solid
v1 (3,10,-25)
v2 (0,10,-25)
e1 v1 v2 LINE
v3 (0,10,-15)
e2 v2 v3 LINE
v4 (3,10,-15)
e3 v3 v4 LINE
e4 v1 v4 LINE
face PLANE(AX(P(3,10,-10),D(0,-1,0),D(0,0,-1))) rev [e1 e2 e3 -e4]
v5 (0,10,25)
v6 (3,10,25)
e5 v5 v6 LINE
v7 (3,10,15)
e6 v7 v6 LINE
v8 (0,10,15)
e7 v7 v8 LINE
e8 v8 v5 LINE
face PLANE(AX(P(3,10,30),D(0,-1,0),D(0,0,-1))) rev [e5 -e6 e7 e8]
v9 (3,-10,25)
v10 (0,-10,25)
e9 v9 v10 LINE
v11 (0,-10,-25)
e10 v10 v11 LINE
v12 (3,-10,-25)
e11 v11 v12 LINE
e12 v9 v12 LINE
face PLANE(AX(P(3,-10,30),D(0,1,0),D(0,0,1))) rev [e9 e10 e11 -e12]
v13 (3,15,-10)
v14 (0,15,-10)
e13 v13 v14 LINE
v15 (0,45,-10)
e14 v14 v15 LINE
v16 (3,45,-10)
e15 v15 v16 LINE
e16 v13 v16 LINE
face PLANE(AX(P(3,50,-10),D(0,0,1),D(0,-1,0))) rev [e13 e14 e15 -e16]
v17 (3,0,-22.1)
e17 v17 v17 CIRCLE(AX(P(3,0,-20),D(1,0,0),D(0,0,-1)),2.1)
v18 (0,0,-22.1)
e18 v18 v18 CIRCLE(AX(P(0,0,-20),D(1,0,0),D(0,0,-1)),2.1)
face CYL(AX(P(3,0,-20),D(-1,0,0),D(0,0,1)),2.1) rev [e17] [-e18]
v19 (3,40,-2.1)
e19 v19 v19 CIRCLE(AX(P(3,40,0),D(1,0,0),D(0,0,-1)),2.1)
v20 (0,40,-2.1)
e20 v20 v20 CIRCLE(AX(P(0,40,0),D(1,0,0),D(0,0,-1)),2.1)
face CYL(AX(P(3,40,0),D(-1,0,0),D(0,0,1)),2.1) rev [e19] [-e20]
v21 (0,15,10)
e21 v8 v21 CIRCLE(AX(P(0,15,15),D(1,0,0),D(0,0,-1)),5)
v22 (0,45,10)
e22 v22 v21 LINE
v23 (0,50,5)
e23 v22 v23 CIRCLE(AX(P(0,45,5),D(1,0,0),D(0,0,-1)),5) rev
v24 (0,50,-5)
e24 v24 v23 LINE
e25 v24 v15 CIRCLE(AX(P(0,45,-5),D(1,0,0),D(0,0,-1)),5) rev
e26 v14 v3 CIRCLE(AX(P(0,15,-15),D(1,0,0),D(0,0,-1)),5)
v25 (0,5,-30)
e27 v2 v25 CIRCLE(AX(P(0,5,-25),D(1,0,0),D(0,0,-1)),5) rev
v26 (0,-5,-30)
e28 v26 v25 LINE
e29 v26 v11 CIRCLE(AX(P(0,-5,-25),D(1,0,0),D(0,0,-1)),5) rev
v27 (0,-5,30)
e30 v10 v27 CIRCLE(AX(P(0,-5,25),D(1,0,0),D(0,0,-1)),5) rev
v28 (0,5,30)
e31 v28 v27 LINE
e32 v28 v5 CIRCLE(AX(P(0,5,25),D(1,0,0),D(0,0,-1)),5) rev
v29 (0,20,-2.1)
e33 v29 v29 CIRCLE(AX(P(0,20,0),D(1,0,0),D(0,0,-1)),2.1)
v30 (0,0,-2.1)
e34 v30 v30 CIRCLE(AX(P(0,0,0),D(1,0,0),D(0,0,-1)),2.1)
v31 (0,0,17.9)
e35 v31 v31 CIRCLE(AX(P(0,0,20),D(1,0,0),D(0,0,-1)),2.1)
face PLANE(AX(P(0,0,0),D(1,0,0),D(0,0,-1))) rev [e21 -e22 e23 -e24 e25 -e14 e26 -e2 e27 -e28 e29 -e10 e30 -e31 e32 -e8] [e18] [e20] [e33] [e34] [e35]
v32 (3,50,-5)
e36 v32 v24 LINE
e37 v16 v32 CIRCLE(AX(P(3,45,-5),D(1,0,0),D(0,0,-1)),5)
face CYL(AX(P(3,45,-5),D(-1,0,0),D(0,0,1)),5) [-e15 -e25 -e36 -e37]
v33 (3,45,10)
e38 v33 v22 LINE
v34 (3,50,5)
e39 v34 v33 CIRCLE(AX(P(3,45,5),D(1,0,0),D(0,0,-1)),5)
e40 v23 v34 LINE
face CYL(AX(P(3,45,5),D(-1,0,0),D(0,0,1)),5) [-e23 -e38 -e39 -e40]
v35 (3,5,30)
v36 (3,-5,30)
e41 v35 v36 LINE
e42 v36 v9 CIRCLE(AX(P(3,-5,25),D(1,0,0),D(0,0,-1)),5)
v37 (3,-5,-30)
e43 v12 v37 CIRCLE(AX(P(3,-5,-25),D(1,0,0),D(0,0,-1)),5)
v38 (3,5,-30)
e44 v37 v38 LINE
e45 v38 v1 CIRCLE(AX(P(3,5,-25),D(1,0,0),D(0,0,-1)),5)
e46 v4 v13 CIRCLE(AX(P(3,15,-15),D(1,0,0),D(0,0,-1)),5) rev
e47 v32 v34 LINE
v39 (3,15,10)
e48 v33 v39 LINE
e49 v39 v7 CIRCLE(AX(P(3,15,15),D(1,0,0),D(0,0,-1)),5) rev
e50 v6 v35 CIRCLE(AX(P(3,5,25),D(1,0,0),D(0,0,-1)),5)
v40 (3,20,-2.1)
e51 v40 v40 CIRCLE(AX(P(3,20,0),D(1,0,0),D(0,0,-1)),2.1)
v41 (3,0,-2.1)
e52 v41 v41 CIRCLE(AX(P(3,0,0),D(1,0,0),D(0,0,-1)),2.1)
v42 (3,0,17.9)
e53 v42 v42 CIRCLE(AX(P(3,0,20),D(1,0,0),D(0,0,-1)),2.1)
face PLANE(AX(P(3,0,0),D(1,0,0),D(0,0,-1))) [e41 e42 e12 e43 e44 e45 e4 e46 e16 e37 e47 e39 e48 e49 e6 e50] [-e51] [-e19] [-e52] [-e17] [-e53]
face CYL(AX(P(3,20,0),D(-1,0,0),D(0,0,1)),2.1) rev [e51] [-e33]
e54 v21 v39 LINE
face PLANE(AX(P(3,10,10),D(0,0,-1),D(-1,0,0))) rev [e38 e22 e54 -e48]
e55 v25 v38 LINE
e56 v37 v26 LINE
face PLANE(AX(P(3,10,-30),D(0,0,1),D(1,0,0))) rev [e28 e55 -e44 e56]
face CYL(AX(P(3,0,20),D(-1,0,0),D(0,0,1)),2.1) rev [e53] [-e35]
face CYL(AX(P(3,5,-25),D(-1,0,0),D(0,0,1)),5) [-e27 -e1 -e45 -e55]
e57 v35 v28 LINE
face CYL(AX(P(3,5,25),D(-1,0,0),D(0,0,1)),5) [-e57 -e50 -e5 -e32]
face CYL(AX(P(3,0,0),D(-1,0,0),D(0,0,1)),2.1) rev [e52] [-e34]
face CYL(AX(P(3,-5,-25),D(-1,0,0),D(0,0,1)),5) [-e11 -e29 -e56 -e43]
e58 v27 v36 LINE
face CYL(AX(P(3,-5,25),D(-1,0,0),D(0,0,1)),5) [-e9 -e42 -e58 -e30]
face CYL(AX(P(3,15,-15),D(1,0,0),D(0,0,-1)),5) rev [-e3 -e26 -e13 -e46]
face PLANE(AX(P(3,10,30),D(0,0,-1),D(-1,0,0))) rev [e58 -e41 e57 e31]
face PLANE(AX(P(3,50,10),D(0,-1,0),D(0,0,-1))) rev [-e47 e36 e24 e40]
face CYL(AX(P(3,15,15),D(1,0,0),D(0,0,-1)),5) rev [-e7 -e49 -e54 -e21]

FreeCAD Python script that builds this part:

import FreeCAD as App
import Part
import Sketcher
from FreeCAD import Vector
Q = App.Units.Quantity


def edges_at(feature, points):
    """Names of the edges that pass closest to the given points."""
    edges = feature.Shape.Edges
    near = lambda p: min(range(len(edges)), key=lambda i: edges[i].distToShape(Part.Vertex(*p))[0])
    return sorted({f"Edge{near(p) + 1}" for p in points})

doc = App.newDocument("Part")
params = doc.addObject("Spreadsheet::Sheet", "Params")
for row, (alias, value) in enumerate([
    ("sketch1_diameter", "4.2 mm"),
    ("sketch1_width", "40 mm"),
    ("sketch1_width2", "20 mm"),
    ("pad1_length", "3 mm"),
    ("fillet_radius", "5 mm"),
], start=1):
    params.set(f"A{row}", alias)
    params.set(f"B{row}", "=" + value)
    params.setAlias(f"B{row}", alias)

body = doc.addObject("PartDesign::Body", "Body")

sketch1 = doc.addObject("Sketcher::SketchObject", "Sketch")
body.addObject(sketch1)
sketch1.AttachmentSupport = (doc.YZ_Plane, [""])
sketch1.MapMode = "FlatFace"
sketch1.addGeometry(Part.LineSegment(Vector(50, 10, 0), Vector(10, 10, 0)), False)
sketch1.addGeometry(Part.LineSegment(Vector(10, 10, 0), Vector(10, 30, 0)), False)
sketch1.addGeometry(Part.LineSegment(Vector(10, 30, 0), Vector(-10, 30, 0)), False)
sketch1.addGeometry(Part.LineSegment(Vector(-10, 30, 0), Vector(-10, -30, 0)), False)
sketch1.addGeometry(Part.LineSegment(Vector(-10, -30, 0), Vector(10, -30, 0)), False)
sketch1.addGeometry(Part.LineSegment(Vector(10, -30, 0), Vector(10, -10, 0)), False)
sketch1.addGeometry(Part.LineSegment(Vector(10, -10, 0), Vector(50, -10, 0)), False)
sketch1.addGeometry(Part.LineSegment(Vector(50, -10, 0), Vector(50, 10, 0)), False)
sketch1.addGeometry(Part.Circle(Vector(0, -20, 0), Vector(0, 0, 1), 2.1), False)
sketch1.addGeometry(Part.Circle(Vector(0, 0, 0), Vector(0, 0, 1), 2.1), False)
sketch1.addGeometry(Part.Circle(Vector(0, 20, 0), Vector(0, 0, 1), 2.1), False)
sketch1.addGeometry(Part.Circle(Vector(20, 0, 0), Vector(0, 0, 1), 2.1), False)
sketch1.addGeometry(Part.Circle(Vector(40, 0, 0), Vector(0, 0, 1), 2.1), False)
sketch1.addConstraint(Sketcher.Constraint("Coincident", 0, 2, 1, 1))
sketch1.addConstraint(Sketcher.Constraint("Coincident", 1, 2, 2, 1))
sketch1.addConstraint(Sketcher.Constraint("Coincident", 2, 2, 3, 1))
sketch1.addConstraint(Sketcher.Constraint("Coincident", 3, 2, 4, 1))
sketch1.addConstraint(Sketcher.Constraint("Coincident", 4, 2, 5, 1))
sketch1.addConstraint(Sketcher.Constraint("Coincident", 5, 2, 6, 1))
sketch1.addConstraint(Sketcher.Constraint("Coincident", 6, 2, 7, 1))
sketch1.addConstraint(Sketcher.Constraint("Coincident", 7, 2, 0, 1))
sketch1.addConstraint(Sketcher.Constraint("Horizontal", 0))
sketch1.addConstraint(Sketcher.Constraint("Vertical", 1))
sketch1.addConstraint(Sketcher.Constraint("Horizontal", 2))
sketch1.addConstraint(Sketcher.Constraint("Vertical", 3))
sketch1.addConstraint(Sketcher.Constraint("Horizontal", 4))
sketch1.addConstraint(Sketcher.Constraint("Vertical", 5))
sketch1.addConstraint(Sketcher.Constraint("Horizontal", 6))
sketch1.addConstraint(Sketcher.Constraint("Vertical", 7))
sketch1.addConstraint(Sketcher.Constraint("Coincident", 9, 3, -1, 1))
sketch1.addConstraint(Sketcher.Constraint("Equal", 8, 9))
sketch1.addConstraint(Sketcher.Constraint("Equal", 9, 10))
sketch1.addConstraint(Sketcher.Constraint("Equal", 10, 11))
sketch1.addConstraint(Sketcher.Constraint("Equal", 11, 12))
sketch1.addConstraint(Sketcher.Constraint("Symmetric", 8, 3, 10, 3, -1, 1))
sketch1.addConstraint(Sketcher.Constraint("Symmetric", 1, 2, 3, 2, -1, 1))
sketch1.addConstraint(Sketcher.Constraint("Symmetric", 0, 2, 5, 2, -1))
sketch1.addConstraint(Sketcher.Constraint("PointOnObject", 8, 3, -2))
sketch1.addConstraint(Sketcher.Constraint("PointOnObject", 11, 3, -1))
sketch1.addConstraint(Sketcher.Constraint("PointOnObject", 12, 3, -1))
sketch1.addConstraint(Sketcher.Constraint("Equal", 4, 1))
sketch1.addConstraint(Sketcher.Constraint("Equal", 5, 7))
sketch1.addConstraint(Sketcher.Constraint("Diameter", 8, Q("4.2 mm")))
sketch1.addConstraint(Sketcher.Constraint("DistanceX", 0, 2, 0, 1, Q("40 mm")))
sketch1.addConstraint(Sketcher.Constraint("DistanceX", 2, 2, 2, 1, Q("20 mm")))
sketch1.addConstraint(Sketcher.Constraint("DistanceY", 8, 3, -1, 1, Q("20 mm")))
sketch1.addConstraint(Sketcher.Constraint("DistanceX", -1, 1, 11, 3, Q("20 mm")))
sketch1.addConstraint(Sketcher.Constraint("DistanceX", -1, 1, 12, 3, Q("40 mm")))
sketch1.setExpression("Constraints[29]", "Params.sketch1_diameter")
sketch1.setExpression("Constraints[30]", "Params.sketch1_width")
sketch1.setExpression("Constraints[31]", "Params.sketch1_width2")
pad1 = doc.addObject("PartDesign::Pad", "Pad")
body.addObject(pad1)
pad1.Profile = sketch1
pad1.setExpression("Length", "Params.pad1_length")
doc.recompute()

fillet = doc.addObject("PartDesign::Fillet", "Fillet")
body.addObject(fillet)
fillet.Base = (pad1, edges_at(pad1, [
    (1.5, -10, -30),
    (1.5, -10, 30),
    (1.5, 10, 30),
    (1.5, 10, 10),
    (1.5, 50, 10),
    (1.5, 50, -10),
    (1.5, 10, -10),
    (1.5, 10, -30),
]))
fillet.setExpression("Radius", "Params.fillet_radius")

doc.recompute()
